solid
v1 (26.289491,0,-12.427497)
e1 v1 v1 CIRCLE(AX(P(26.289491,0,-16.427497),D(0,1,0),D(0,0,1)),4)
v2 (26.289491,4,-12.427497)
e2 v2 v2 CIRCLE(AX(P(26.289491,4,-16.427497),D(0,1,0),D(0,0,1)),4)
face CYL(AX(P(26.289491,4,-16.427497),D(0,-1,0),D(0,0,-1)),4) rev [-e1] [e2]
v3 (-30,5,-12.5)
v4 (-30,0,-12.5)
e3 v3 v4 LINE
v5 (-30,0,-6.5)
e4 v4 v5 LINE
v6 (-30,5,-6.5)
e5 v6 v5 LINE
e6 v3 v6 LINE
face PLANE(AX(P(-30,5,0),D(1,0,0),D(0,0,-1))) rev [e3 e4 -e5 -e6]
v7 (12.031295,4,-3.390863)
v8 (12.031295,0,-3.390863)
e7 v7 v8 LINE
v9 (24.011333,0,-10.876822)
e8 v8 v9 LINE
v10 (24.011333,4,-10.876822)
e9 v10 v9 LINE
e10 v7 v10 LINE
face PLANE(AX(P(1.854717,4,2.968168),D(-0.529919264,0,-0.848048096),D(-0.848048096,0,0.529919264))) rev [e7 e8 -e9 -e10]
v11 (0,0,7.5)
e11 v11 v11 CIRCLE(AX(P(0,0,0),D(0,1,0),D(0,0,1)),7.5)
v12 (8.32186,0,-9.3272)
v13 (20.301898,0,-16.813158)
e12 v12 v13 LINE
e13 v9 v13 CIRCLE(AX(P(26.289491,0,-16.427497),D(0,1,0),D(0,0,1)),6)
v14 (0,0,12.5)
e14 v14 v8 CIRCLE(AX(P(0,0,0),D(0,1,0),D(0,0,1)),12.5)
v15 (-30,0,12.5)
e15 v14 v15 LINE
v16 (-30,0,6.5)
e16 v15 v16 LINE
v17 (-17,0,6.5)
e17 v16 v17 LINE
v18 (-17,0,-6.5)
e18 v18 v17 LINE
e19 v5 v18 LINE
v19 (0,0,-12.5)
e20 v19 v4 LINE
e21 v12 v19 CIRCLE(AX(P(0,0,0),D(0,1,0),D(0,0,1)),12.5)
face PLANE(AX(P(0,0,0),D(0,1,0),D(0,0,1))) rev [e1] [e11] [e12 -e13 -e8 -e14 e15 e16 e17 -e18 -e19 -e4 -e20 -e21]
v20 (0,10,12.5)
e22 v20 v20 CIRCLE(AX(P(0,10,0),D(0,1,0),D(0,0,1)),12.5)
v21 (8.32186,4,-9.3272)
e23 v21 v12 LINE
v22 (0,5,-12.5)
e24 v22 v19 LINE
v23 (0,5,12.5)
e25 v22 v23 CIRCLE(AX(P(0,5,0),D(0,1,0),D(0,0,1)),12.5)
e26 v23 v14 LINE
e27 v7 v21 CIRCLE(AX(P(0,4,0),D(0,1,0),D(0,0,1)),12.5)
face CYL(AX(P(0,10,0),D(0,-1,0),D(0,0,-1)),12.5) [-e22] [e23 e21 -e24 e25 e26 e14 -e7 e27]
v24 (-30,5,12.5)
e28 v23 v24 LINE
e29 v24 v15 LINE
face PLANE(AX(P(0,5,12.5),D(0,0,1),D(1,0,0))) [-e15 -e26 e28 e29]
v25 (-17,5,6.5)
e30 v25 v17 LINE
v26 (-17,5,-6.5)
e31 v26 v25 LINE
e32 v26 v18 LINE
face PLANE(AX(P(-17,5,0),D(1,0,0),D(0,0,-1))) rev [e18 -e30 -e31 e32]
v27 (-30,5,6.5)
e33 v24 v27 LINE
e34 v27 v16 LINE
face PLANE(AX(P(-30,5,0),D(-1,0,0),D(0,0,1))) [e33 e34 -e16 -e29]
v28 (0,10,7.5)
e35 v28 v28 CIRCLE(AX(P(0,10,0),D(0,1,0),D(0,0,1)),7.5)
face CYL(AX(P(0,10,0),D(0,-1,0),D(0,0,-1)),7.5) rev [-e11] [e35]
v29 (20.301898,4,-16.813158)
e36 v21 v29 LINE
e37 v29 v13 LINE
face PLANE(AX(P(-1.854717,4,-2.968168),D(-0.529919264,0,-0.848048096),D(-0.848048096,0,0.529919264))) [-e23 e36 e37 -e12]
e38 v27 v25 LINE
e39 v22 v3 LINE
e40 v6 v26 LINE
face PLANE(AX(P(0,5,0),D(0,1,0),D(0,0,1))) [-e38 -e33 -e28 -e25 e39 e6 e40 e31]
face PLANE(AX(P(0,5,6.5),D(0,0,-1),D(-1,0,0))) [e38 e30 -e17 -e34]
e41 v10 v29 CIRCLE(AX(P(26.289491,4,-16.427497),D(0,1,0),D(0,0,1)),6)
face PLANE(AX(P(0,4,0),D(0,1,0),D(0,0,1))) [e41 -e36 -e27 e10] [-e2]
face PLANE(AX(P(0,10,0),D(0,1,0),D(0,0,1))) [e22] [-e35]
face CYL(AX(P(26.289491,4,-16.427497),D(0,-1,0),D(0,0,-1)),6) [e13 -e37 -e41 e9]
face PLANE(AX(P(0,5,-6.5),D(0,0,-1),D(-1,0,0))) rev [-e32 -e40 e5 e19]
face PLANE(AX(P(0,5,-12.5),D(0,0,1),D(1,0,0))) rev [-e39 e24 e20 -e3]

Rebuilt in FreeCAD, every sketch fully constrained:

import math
import FreeCAD as App
import Part
import Sketcher
from FreeCAD import Vector
Q = App.Units.Quantity

doc = App.newDocument("Part")
body = doc.addObject("PartDesign::Body", "Body")

sketch1 = body.newObject("Sketcher::SketchObject", "Sketch")
sketch1.AttachmentSupport = (doc.getObject("XZ_Plane"), [""])
sketch1.MapMode = "FlatFace"
sketch1.addGeometry([
    Part.Circle(Vector(0, 0, 0), Vector(0, 0, 1), 12.5),
    Part.Circle(Vector(0, 0, 0), Vector(0, 0, 1), 7.5),
], False)
sketch1.addConstraint([
    Sketcher.Constraint("Coincident", 0, 3, -1, 1),
    Sketcher.Constraint("Coincident", 1, 3, -1, 1),
    Sketcher.Constraint("Diameter", 0, 25.0),
    Sketcher.Constraint("Diameter", 1, 15.0),
])
pad1 = body.newObject("PartDesign::Pad", "Pad")
pad1.Profile = sketch1
pad1.Length = 10
pad1.Reversed = True

sketch2 = body.newObject("Sketcher::SketchObject", "Sketch001")
sketch2.AttachmentSupport = (doc.getObject("XZ_Plane"), [""])
sketch2.MapMode = "FlatFace"
sketch2.addGeometry([
    Part.ArcOfCircle(Part.Circle(Vector(0, 0, 0), Vector(0, 0, 1), 12.5), math.radians(90), math.radians(270)),
    Part.LineSegment(Vector(0, -12.5, 0), Vector(-30, -12.5, 0)),
    Part.LineSegment(Vector(-30, -12.5, 0), Vector(-30, -6.5, 0)),
    Part.LineSegment(Vector(-30, -6.5, 0), Vector(-17, -6.5, 0)),
    Part.LineSegment(Vector(-17, -6.5, 0), Vector(-17, 6.5, 0)),
    Part.LineSegment(Vector(-17, 6.5, 0), Vector(-30, 6.5, 0)),
    Part.LineSegment(Vector(-30, 6.5, 0), Vector(-30, 12.5, 0)),
    Part.LineSegment(Vector(-30, 12.5, 0), Vector(0, 12.5, 0)),
], False)
sketch2.addConstraint([
    Sketcher.Constraint("Tangent", 0, 2, 1, 1),
    Sketcher.Constraint("Coincident", 1, 2, 2, 1),
    Sketcher.Constraint("Coincident", 2, 2, 3, 1),
    Sketcher.Constraint("Coincident", 3, 2, 4, 1),
    Sketcher.Constraint("Coincident", 4, 2, 5, 1),
    Sketcher.Constraint("Coincident", 5, 2, 6, 1),
    Sketcher.Constraint("Coincident", 6, 2, 7, 1),
    Sketcher.Constraint("Tangent", 7, 2, 0, 1),
    Sketcher.Constraint("Horizontal", 1),
    Sketcher.Constraint("Vertical", 2),
    Sketcher.Constraint("Horizontal", 3),
    Sketcher.Constraint("Vertical", 4),
    Sketcher.Constraint("Horizontal", 5),
    Sketcher.Constraint("Vertical", 6),
    Sketcher.Constraint("Horizontal", 7),
    Sketcher.Constraint("Coincident", 0, 3, -1, 1),
    Sketcher.Constraint("Symmetric", 2, 2, 5, 2, -1),
    Sketcher.Constraint("Equal", 5, 4),
    Sketcher.Constraint("Radius", 0, 12.5),
    Sketcher.Constraint("DistanceX", 1, 2, 1, 1, 30.0),
    Sketcher.Constraint("DistanceX", 3, 1, 3, 2, 13.0),
])
pad2 = body.newObject("PartDesign::Pad", "Pad001")
pad2.Profile = sketch2
pad2.Length = 5
pad2.Reversed = True

sketch3 = body.newObject("Sketcher::SketchObject", "Sketch002")
sketch3.AttachmentSupport = (doc.getObject("XZ_Plane"), [""])
sketch3.MapMode = "FlatFace"
sketch3.addGeometry([
    Part.LineSegment(Vector(20.301898, -16.813158, 0), Vector(8.32186, -9.3272, 0)),
    Part.ArcOfCircle(Part.Circle(Vector(0, 0, 0), Vector(0, 0, 1), 12.5), math.radians(-48.260205), math.radians(-15.739795)),
    Part.LineSegment(Vector(12.031295, -3.390863, 0), Vector(24.011333, -10.876822, 0)),
    Part.ArcOfCircle(Part.Circle(Vector(26.289491, -16.427497, 0), Vector(0, 0, 1), 6), math.radians(-176.314665), math.radians(112.314665)),
    Part.Circle(Vector(26.289491, -16.427497, 0), Vector(0, 0, 1), 4),
], False)
sketch3.addConstraint([
    Sketcher.Constraint("Coincident", 0, 2, 1, 1),
    Sketcher.Constraint("Coincident", 1, 2, 2, 1),
    Sketcher.Constraint("Coincident", 2, 2, 3, 2),
    Sketcher.Constraint("Coincident", 3, 1, 0, 1),
    Sketcher.Constraint("Coincident", 1, 3, -1, 1),
    Sketcher.Constraint("Coincident", 4, 3, 3, 3),
    Sketcher.Constraint("Parallel", 0, 2),
    Sketcher.Constraint("Equal", 0, 2),
    Sketcher.Constraint("Diameter", 4, 8.0),
    Sketcher.Constraint("Radius", 3, 6.0),
    Sketcher.Constraint("Radius", 1, 12.5),
    Sketcher.Constraint("Angle", 0, Q("148 deg")),
    Sketcher.Constraint("DistanceY", 0, 2, -1, 1, 9.3272),
    Sketcher.Constraint("DistanceX", -1, 1, 3, 1, 20.301898),
    Sketcher.Constraint("DistanceX", -1, 1, 3, 3, 26.289491),
])
pad3 = body.newObject("PartDesign::Pad", "Pad002")
pad3.Profile = sketch3
pad3.Length = 4
pad3.Reversed = True

doc.recompute()
